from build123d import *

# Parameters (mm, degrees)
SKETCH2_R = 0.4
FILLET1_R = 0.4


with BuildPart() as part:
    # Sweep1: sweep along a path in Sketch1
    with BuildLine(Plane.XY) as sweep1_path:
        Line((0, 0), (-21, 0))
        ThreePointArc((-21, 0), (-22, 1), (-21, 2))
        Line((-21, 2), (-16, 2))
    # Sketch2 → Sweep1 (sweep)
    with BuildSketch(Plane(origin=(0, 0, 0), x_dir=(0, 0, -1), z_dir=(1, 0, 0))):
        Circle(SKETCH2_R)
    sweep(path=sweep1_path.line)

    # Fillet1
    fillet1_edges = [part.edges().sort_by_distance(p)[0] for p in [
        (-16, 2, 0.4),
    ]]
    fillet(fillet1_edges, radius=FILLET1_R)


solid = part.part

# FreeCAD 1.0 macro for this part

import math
import FreeCAD as App
import Part
import Sketcher

V = App.Vector


def edges_at(feature, points):
    """Names of the edges that pass closest to the given points."""
    edges = feature.Shape.Edges
    near = lambda p: min(range(len(edges)), key=lambda i: edges[i].distToShape(Part.Vertex(*p))[0])
    return sorted({f"Edge{near(p) + 1}" for p in points})

doc = App.newDocument("Part")
body = doc.addObject("PartDesign::Body", "Body")

sketch1 = body.newObject("Sketcher::SketchObject", "Sketch")
sketch1.AttachmentSupport = (doc.getObject("YZ_Plane"), [""])
sketch1.MapMode = "FlatFace"
sketch1.addGeometry(Part.Circle(V(0, 0, 0), V(0, 0, 1), 0.4), False)
sketch1.addConstraint([
    Sketcher.Constraint("Coincident", 0, 3, -1, 1),
    Sketcher.Constraint("Diameter", 0, 0.8),
])

sketch2 = body.newObject("Sketcher::SketchObject", "Sketch001")
sketch2.AttachmentSupport = (doc.getObject("XY_Plane"), [""])
sketch2.MapMode = "FlatFace"
sketch2.addGeometry([
    Part.LineSegment(V(0, 0, 0), V(-21, 0, 0)),
    Part.ArcOfCircle(Part.Circle(V(-21, 1, 0), V(0, 0, 1), 1), math.radians(90), math.radians(270)),
    Part.LineSegment(V(-21, 2, 0), V(-16, 2, 0)),
], False)
sketch2.addConstraint([
    Sketcher.Constraint("Tangent", 0, 2, 1, 2),
    Sketcher.Constraint("Tangent", 1, 1, 2, 1),
    Sketcher.Constraint("Horizontal", 0),
    Sketcher.Constraint("Horizontal", 2),
    Sketcher.Constraint("Coincident", 0, 1, -1, 1),
    Sketcher.Constraint("Radius", 1, 1.0),
    Sketcher.Constraint("DistanceX", 0, 2, 0, 1, 21.0),
    Sketcher.Constraint("DistanceX", 2, 1, 2, 2, 5.0),
])
doc.recompute()

additivepipe = body.newObject("PartDesign::AdditivePipe", "AdditivePipe")
additivepipe.Profile = sketch1
additivepipe.Spine = (sketch2, ["Edge1", "Edge2", "Edge3"])
doc.recompute()

fillet = body.newObject("PartDesign::Fillet", "Fillet")
fillet.Base = (additivepipe, edges_at(additivepipe, [(-16, 2, 0.4)]))
fillet.Radius = 0.4

doc.recompute()
